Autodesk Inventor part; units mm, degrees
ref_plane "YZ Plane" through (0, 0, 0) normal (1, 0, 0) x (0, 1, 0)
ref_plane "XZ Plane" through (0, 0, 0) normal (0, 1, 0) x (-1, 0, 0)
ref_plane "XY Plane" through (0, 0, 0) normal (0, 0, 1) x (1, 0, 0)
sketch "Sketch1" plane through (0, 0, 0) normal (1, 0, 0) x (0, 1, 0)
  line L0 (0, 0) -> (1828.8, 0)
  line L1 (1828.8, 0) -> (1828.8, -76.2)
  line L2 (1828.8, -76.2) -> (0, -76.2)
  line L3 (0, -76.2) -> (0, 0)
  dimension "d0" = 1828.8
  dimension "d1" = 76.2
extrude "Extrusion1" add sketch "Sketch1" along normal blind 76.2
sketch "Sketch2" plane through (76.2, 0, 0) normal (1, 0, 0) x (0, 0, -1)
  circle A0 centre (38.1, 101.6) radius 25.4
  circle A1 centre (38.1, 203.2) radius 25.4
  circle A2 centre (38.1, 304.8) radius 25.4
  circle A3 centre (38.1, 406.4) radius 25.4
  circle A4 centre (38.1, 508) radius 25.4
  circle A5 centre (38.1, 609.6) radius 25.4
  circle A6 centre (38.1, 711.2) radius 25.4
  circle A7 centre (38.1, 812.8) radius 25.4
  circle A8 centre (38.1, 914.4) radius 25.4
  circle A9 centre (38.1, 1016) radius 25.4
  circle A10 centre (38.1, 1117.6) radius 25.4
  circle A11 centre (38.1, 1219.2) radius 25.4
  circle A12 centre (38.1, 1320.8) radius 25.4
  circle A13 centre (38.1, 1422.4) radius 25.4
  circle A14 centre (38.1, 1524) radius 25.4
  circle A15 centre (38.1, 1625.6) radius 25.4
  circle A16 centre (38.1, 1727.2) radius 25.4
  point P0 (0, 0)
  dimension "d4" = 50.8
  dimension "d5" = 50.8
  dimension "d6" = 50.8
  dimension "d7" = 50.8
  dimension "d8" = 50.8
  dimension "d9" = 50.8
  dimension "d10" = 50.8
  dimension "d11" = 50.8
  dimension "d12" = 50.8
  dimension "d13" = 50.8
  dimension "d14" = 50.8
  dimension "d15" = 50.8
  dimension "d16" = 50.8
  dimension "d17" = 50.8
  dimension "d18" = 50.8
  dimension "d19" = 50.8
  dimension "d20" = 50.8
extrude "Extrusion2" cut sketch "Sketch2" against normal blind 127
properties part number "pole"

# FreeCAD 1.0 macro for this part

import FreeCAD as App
import Part
import Sketcher
from FreeCAD import Vector
Q = App.Units.Quantity


def add_polygon(sketch, points):
    """Adds a closed chain of lines whose ends are joined by coincident constraints."""
    first, n = sketch.GeometryCount, len(points)
    for a, b in zip(points, points[1:] + points[:1]):
        sketch.addGeometry(Part.LineSegment(App.Vector(*a, 0), App.Vector(*b, 0)), False)
    for i in range(n):
        sketch.addConstraint(Sketcher.Constraint("Coincident", first + i, 2, first + (i + 1) % n, 1))

doc = App.newDocument("Part")
body = doc.addObject("PartDesign::Body", "Body")

# Sketch on YZ plane
sketch1 = doc.addObject("Sketcher::SketchObject", "Sketch")
body.addObject(sketch1)
sketch1.AttachmentSupport = (doc.YZ_Plane, [""])
sketch1.MapMode = "FlatFace"
add_polygon(sketch1, [(1829, 0), (0, 0), (0, -76), (1829, -76)])  # lines 0-3
sketch1.addConstraint([
    Sketcher.Constraint("Horizontal", 0),
    Sketcher.Constraint("Vertical", 1),
    Sketcher.Constraint("Horizontal", 2),
    Sketcher.Constraint("Vertical", 3),
    Sketcher.Constraint("Coincident", 0, 2, -1, 1),
    Sketcher.Constraint("DistanceX", 0, 2, 0, 1, Q("72 in")),
    Sketcher.Constraint("DistanceY", 1, 2, 1, 1, Q("3 in")),
])
pad1 = doc.addObject("PartDesign::Pad", "Pad")
body.addObject(pad1)
pad1.Profile = sketch1
pad1.Length = Q("3 in")

# Sketch on YZ plane
sketch2 = doc.addObject("Sketcher::SketchObject", "Sketch001")
body.addObject(sketch2)
sketch2.AttachmentSupport = (doc.YZ_Plane, [""])
sketch2.MapMode = "FlatFace"
sketch2.AttachmentOffset = App.Placement(Vector(0, 0, 3 * 25.4), App.Rotation())
sketch2.addGeometry([
    Part.Circle(Vector(102, -38, 0), Vector(0, 0, 1), 25),  # 0
    Part.Circle(Vector(203, -38, 0), Vector(0, 0, 1), 25),  # 1
    Part.Circle(Vector(305, -38, 0), Vector(0, 0, 1), 25),  # 2
    Part.Circle(Vector(406, -38, 0), Vector(0, 0, 1), 25),  # 3
    Part.Circle(Vector(508, -38, 0), Vector(0, 0, 1), 25),  # 4
    Part.Circle(Vector(610, -38, 0), Vector(0, 0, 1), 25),  # 5
    Part.Circle(Vector(711, -38, 0), Vector(0, 0, 1), 25),  # 6
    Part.Circle(Vector(813, -38, 0), Vector(0, 0, 1), 25),  # 7
    Part.Circle(Vector(914, -38, 0), Vector(0, 0, 1), 25),  # 8
    Part.Circle(Vector(1016, -38, 0), Vector(0, 0, 1), 25),  # 9
    Part.Circle(Vector(1118, -38, 0), Vector(0, 0, 1), 25),  # 10
    Part.Circle(Vector(1219, -38, 0), Vector(0, 0, 1), 25),  # 11
    Part.Circle(Vector(1321, -38, 0), Vector(0, 0, 1), 25),  # 12
    Part.Circle(Vector(1422, -38, 0), Vector(0, 0, 1), 25),  # 13
    Part.Circle(Vector(1524, -38, 0), Vector(0, 0, 1), 25),  # 14
    Part.Circle(Vector(1626, -38, 0), Vector(0, 0, 1), 25),  # 15
    Part.Circle(Vector(1727, -38, 0), Vector(0, 0, 1), 25),  # 16
], False)
sketch2.addConstraint([
    Sketcher.Constraint("Equal", 0, 1),
    Sketcher.Constraint("Equal", 1, 2),
    Sketcher.Constraint("Equal", 2, 3),
    Sketcher.Constraint("Equal", 3, 4),
    Sketcher.Constraint("Equal", 4, 5),
    Sketcher.Constraint("Equal", 5, 6),
    Sketcher.Constraint("Equal", 6, 7),
    Sketcher.Constraint("Equal", 7, 8),
    Sketcher.Constraint("Equal", 8, 9),
    Sketcher.Constraint("Equal", 9, 10),
    Sketcher.Constraint("Equal", 10, 11),
    Sketcher.Constraint("Equal", 11, 12),
    Sketcher.Constraint("Equal", 12, 13),
    Sketcher.Constraint("Equal", 13, 14),
    Sketcher.Constraint("Equal", 14, 15),
    Sketcher.Constraint("Equal", 15, 16),
    Sketcher.Constraint("Horizontal", 0, 3, 1, 3),
    Sketcher.Constraint("Horizontal", 1, 3, 2, 3),
    Sketcher.Constraint("Horizontal", 2, 3, 3, 3),
    Sketcher.Constraint("Horizontal", 3, 3, 4, 3),
    Sketcher.Constraint("Horizontal", 4, 3, 5, 3),
    Sketcher.Constraint("Horizontal", 5, 3, 6, 3),
    Sketcher.Constraint("Horizontal", 6, 3, 7, 3),
    Sketcher.Constraint("Horizontal", 7, 3, 8, 3),
    Sketcher.Constraint("Horizontal", 8, 3, 9, 3),
    Sketcher.Constraint("Horizontal", 9, 3, 10, 3),
    Sketcher.Constraint("Horizontal", 10, 3, 11, 3),
    Sketcher.Constraint("Horizontal", 11, 3, 12, 3),
    Sketcher.Constraint("Horizontal", 12, 3, 13, 3),
    Sketcher.Constraint("Horizontal", 13, 3, 14, 3),
    Sketcher.Constraint("Horizontal", 14, 3, 15, 3),
    Sketcher.Constraint("Horizontal", 15, 3, 16, 3),
    Sketcher.Constraint("Diameter", 0, Q("2 in")),
    Sketcher.Constraint("DistanceX", -1, 1, 0, 3, Q("4 in")),
    Sketcher.Constraint("DistanceX", -1, 1, 1, 3, Q("8 in")),
    Sketcher.Constraint("DistanceX", -1, 1, 2, 3, Q("12 in")),
    Sketcher.Constraint("DistanceX", -1, 1, 3, 3, Q("16 in")),
    Sketcher.Constraint("DistanceX", -1, 1, 4, 3, Q("20 in")),
    Sketcher.Constraint("DistanceX", -1, 1, 5, 3, Q("24 in")),
    Sketcher.Constraint("DistanceX", -1, 1, 6, 3, Q("28 in")),
    Sketcher.Constraint("DistanceX", -1, 1, 7, 3, Q("32 in")),
    Sketcher.Constraint("DistanceX", -1, 1, 8, 3, Q("36 in")),
    Sketcher.Constraint("DistanceX", -1, 1, 9, 3, Q("40 in")),
    Sketcher.Constraint("DistanceX", -1, 1, 10, 3, Q("44 in")),
    Sketcher.Constraint("DistanceX", -1, 1, 11, 3, Q("48 in")),
    Sketcher.Constraint("DistanceX", -1, 1, 12, 3, Q("52 in")),
    Sketcher.Constraint("DistanceX", -1, 1, 13, 3, Q("56 in")),
    Sketcher.Constraint("DistanceX", -1, 1, 14, 3, Q("60 in")),
    Sketcher.Constraint("DistanceX", -1, 1, 15, 3, Q("64 in")),
    Sketcher.Constraint("DistanceX", -1, 1, 16, 3, Q("68 in")),
    Sketcher.Constraint("DistanceY", 0, 3, -1, 1, Q("1.5 in")),
])
pocket1 = doc.addObject("PartDesign::Pocket", "Pocket")
body.addObject(pocket1)
pocket1.Profile = sketch2
pocket1.Length = Q("5 in")

doc.recompute()
